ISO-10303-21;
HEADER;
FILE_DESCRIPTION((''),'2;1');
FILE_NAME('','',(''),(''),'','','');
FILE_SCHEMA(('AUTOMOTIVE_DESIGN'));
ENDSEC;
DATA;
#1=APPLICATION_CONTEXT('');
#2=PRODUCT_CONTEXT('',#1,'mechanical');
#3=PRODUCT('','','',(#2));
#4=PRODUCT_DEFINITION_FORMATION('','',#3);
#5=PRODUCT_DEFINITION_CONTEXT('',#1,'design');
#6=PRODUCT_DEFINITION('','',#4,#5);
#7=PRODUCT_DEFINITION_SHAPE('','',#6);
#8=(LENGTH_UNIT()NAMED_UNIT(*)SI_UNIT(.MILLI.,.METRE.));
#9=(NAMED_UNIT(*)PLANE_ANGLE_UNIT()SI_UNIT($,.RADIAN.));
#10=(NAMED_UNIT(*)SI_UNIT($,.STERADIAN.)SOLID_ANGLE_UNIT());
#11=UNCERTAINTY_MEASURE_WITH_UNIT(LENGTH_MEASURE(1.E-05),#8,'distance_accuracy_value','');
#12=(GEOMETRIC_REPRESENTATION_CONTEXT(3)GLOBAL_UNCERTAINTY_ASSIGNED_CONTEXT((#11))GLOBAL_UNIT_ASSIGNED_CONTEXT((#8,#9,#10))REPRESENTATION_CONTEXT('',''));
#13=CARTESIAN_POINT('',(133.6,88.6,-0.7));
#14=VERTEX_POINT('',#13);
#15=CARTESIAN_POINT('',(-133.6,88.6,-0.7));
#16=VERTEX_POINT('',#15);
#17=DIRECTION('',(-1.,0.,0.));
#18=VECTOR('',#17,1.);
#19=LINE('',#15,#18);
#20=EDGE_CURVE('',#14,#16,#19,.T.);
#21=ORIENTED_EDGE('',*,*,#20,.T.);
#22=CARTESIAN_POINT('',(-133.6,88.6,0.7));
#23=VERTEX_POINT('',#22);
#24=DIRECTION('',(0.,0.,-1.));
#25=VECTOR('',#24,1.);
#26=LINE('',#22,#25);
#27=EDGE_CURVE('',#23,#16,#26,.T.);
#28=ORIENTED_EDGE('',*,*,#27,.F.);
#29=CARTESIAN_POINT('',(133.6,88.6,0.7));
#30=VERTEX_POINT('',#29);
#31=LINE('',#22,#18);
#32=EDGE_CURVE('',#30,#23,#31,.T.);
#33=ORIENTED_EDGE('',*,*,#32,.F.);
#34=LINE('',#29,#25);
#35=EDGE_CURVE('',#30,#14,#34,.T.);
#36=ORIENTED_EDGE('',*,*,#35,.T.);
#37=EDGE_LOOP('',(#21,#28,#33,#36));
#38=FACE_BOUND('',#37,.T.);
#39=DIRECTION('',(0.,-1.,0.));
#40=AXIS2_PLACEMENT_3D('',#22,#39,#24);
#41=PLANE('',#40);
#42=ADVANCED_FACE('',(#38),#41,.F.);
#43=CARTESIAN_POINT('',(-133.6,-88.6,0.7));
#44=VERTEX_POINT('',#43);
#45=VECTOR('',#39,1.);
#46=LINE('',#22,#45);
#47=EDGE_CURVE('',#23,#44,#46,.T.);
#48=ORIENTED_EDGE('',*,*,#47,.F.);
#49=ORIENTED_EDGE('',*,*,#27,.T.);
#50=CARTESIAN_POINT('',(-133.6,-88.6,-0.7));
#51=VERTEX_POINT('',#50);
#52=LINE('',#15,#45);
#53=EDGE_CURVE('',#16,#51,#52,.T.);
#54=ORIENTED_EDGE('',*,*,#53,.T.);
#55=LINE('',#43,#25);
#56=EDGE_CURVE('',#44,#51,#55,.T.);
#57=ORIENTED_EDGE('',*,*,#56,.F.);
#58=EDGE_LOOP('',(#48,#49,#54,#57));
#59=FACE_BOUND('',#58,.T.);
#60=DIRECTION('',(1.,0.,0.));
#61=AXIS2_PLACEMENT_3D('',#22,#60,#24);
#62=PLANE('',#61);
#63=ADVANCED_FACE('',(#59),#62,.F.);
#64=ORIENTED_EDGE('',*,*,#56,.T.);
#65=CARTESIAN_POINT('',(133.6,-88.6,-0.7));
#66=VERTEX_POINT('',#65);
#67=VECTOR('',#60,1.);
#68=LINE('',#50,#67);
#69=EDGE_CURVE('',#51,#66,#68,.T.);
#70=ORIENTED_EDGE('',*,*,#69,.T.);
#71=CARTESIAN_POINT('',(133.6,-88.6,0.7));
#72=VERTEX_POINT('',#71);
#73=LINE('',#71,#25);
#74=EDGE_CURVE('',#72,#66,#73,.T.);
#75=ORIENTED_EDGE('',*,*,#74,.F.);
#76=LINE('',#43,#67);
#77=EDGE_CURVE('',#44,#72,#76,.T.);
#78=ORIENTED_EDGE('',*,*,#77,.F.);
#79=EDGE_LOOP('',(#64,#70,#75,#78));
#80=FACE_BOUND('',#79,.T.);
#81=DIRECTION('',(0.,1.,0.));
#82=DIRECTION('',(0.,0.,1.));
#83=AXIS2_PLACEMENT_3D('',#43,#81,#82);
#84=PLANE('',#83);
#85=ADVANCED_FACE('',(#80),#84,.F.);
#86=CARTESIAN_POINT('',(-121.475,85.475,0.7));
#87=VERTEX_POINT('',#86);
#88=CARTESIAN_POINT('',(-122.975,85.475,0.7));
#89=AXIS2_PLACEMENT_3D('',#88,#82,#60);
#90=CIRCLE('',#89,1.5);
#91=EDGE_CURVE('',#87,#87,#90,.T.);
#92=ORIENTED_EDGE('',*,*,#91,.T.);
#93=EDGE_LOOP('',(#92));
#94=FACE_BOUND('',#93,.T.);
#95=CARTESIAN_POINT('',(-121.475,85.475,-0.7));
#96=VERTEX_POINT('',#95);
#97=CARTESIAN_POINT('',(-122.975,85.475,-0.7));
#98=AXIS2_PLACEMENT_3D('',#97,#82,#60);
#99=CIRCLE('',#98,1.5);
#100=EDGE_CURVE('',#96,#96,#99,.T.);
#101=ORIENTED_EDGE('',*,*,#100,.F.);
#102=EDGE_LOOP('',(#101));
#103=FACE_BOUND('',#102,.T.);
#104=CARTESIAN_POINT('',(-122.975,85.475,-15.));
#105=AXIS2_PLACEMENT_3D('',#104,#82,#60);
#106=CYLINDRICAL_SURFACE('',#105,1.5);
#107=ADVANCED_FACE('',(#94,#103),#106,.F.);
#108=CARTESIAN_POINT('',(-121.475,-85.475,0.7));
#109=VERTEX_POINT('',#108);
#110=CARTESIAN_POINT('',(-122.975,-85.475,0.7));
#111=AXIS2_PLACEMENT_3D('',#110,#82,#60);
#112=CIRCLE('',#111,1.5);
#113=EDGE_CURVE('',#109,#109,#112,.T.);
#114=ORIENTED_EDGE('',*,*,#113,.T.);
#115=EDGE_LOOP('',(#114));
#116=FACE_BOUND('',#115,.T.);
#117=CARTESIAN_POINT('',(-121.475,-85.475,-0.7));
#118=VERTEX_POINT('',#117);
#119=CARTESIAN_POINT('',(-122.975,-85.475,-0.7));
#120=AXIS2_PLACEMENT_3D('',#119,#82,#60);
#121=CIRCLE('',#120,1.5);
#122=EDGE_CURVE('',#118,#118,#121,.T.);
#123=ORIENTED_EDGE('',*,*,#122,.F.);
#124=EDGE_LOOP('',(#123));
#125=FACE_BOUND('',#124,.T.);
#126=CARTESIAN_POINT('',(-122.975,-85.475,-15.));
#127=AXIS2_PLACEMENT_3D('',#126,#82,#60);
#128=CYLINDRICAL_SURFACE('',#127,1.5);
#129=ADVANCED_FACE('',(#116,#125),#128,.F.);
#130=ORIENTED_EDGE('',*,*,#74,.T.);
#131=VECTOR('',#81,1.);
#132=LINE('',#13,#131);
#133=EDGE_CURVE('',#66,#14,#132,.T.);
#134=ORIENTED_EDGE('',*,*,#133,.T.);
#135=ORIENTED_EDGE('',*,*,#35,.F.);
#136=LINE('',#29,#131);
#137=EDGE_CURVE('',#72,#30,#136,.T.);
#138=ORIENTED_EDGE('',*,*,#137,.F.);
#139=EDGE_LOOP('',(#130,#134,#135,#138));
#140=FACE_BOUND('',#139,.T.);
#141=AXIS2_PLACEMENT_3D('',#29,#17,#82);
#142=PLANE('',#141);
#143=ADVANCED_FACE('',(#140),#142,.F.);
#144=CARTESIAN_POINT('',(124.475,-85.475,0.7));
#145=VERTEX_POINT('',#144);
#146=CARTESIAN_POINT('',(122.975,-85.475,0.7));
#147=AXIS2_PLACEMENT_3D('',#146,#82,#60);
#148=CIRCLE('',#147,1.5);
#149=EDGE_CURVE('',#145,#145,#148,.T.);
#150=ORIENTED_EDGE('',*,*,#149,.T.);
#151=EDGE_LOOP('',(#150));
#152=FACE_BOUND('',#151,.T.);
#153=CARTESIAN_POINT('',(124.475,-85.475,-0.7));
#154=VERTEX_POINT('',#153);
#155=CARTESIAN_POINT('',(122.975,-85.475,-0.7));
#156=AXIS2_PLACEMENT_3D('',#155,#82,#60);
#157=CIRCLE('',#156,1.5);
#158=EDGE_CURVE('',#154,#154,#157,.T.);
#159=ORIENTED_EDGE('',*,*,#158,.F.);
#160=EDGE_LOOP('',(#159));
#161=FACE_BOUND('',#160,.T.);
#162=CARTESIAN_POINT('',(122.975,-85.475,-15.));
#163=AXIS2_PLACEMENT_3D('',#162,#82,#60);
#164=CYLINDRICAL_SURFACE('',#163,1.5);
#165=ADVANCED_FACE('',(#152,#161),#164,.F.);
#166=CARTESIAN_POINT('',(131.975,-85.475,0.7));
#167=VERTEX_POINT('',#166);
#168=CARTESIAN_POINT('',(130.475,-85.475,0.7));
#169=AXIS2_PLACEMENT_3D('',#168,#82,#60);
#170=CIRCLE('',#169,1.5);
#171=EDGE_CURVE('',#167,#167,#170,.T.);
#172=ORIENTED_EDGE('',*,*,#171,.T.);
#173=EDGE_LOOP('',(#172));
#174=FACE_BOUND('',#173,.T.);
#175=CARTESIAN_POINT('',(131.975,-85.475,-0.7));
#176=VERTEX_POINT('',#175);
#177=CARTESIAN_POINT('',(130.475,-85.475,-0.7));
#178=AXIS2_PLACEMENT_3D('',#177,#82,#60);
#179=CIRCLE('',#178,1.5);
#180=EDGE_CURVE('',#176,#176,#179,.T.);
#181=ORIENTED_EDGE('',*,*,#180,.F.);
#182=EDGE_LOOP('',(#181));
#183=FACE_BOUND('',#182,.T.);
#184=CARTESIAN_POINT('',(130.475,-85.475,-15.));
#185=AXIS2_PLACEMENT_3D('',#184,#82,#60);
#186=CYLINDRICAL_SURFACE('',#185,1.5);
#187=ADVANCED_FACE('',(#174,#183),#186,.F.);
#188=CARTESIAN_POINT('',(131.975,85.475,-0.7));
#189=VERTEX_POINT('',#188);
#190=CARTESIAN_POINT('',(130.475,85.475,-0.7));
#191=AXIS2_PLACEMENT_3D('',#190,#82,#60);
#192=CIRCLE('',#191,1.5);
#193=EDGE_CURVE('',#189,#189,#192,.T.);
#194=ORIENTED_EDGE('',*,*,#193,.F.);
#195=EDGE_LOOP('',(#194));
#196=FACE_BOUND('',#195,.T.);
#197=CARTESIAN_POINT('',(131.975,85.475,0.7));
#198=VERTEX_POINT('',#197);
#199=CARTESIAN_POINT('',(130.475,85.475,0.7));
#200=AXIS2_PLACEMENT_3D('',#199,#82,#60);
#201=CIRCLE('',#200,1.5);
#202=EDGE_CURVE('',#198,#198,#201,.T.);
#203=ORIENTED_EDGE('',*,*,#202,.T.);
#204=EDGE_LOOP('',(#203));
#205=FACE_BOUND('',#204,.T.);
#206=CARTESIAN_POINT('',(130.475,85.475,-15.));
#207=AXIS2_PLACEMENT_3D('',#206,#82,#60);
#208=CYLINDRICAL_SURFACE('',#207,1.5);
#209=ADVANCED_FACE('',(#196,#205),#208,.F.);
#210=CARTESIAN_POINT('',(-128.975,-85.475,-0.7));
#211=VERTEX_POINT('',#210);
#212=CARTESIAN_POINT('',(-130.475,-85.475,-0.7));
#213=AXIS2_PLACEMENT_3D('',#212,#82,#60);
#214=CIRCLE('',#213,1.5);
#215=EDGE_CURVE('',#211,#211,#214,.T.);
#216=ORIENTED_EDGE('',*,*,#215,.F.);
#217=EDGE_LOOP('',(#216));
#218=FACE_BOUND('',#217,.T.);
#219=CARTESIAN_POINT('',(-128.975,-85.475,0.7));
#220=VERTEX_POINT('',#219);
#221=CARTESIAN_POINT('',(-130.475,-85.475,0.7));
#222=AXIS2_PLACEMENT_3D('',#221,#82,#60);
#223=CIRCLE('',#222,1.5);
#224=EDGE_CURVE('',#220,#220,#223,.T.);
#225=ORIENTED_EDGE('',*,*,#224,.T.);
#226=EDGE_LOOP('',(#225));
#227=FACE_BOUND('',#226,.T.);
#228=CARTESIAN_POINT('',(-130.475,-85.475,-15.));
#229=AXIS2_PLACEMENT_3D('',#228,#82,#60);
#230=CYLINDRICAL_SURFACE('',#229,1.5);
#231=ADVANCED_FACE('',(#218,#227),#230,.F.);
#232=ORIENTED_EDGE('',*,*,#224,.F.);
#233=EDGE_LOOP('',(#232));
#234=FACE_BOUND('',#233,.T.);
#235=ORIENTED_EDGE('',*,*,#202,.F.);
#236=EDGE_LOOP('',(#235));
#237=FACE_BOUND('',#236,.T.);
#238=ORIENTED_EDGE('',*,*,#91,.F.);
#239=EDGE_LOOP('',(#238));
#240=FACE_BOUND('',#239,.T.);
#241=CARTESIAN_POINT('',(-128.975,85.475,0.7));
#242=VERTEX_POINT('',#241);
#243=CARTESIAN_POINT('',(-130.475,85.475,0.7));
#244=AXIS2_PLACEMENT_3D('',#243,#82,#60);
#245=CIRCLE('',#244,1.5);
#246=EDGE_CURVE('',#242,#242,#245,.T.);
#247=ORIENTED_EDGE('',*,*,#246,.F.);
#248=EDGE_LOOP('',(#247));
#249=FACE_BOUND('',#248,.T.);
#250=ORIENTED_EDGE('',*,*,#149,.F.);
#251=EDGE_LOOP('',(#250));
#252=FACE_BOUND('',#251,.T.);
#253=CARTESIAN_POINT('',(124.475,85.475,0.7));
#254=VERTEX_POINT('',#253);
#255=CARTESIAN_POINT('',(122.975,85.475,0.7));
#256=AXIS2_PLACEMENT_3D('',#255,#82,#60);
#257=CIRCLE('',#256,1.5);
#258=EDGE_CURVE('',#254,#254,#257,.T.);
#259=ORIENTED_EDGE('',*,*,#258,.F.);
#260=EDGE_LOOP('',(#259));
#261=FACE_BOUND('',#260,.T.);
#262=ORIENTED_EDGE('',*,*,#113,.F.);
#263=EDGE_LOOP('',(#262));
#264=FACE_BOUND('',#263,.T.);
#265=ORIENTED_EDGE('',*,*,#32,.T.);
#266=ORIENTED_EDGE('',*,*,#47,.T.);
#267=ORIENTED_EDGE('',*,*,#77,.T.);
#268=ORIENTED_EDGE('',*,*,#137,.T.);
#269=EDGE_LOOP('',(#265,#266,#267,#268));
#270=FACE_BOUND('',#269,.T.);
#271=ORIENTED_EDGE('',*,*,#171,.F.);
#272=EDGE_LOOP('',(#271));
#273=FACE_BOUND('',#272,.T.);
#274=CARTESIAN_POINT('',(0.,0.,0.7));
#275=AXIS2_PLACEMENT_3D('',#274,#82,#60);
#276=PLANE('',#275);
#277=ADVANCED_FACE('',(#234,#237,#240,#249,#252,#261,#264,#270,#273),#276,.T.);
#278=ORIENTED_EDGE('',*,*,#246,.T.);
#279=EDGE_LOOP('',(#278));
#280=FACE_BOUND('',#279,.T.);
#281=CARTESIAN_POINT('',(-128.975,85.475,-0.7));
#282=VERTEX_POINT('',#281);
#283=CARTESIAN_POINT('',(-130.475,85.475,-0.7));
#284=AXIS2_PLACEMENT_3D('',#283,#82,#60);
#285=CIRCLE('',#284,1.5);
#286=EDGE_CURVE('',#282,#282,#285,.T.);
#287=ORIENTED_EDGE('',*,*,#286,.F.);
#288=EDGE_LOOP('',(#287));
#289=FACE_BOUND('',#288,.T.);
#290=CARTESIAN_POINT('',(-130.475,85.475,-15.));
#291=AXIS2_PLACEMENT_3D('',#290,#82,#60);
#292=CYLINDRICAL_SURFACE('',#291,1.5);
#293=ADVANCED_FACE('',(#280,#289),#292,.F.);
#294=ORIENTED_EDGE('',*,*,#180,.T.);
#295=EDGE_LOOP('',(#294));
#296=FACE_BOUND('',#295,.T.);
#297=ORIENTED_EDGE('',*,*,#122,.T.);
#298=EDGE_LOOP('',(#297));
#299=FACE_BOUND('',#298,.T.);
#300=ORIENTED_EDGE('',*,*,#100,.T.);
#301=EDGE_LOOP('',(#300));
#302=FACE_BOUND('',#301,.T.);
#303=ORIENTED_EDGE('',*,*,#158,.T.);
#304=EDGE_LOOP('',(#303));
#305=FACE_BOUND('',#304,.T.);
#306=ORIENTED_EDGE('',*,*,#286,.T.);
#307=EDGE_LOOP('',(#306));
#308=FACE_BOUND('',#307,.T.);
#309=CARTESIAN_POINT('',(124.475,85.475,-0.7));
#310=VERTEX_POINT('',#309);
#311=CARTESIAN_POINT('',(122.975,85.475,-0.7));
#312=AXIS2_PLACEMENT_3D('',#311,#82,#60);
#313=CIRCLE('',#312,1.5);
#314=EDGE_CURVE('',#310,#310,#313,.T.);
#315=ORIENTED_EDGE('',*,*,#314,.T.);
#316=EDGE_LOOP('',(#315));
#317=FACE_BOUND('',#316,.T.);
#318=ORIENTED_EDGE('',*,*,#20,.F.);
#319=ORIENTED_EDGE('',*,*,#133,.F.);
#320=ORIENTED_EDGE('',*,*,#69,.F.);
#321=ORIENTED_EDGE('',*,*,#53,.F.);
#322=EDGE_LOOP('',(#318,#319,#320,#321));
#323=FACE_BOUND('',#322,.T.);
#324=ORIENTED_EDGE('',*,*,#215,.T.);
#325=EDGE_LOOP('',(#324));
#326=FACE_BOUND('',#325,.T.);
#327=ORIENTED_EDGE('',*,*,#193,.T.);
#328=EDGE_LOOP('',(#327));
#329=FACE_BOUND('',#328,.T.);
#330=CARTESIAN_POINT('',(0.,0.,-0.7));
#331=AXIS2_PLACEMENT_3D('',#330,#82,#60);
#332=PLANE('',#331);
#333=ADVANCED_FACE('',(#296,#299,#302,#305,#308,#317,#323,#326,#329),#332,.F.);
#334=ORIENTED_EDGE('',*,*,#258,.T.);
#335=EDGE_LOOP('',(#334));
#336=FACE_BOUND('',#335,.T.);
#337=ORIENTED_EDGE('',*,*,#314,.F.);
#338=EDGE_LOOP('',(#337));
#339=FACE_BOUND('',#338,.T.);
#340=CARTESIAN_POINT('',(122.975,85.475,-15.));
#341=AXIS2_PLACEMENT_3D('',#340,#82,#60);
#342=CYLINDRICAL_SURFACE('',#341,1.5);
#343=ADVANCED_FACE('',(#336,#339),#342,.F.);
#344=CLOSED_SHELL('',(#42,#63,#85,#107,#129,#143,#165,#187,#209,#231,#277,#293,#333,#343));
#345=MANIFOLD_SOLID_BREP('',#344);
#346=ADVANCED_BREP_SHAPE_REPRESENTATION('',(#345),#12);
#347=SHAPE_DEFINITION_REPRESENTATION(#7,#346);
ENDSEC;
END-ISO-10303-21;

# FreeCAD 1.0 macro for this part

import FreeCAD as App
import Part
import Sketcher
from FreeCAD import Vector

doc = App.newDocument("Part")
body = doc.addObject("PartDesign::Body", "Body")

# Sketch on XY plane
sketch1 = doc.addObject("Sketcher::SketchObject", "Sketch")
body.addObject(sketch1)
sketch1.AttachmentSupport = (doc.XY_Plane, [""])
sketch1.MapMode = "FlatFace"
sketch1.addGeometry([
    Part.LineSegment(Vector(-134, 89, 0), Vector(-134, -89, 0)),
    Part.LineSegment(Vector(-134, -89, 0), Vector(134, -89, 0)),
    Part.LineSegment(Vector(134, -89, 0), Vector(134, 89, 0)),
    Part.LineSegment(Vector(134, 89, 0), Vector(-134, 89, 0)),
], False)
sketch1.addConstraint([
    Sketcher.Constraint("Coincident", 0, 2, 1, 1),
    Sketcher.Constraint("Coincident", 1, 2, 2, 1),
    Sketcher.Constraint("Coincident", 2, 2, 3, 1),
    Sketcher.Constraint("Coincident", 3, 2, 0, 1),
    Sketcher.Constraint("Vertical", 0),
    Sketcher.Constraint("Horizontal", 1),
    Sketcher.Constraint("Vertical", 2),
    Sketcher.Constraint("Horizontal", 3),
    Sketcher.Constraint("Symmetric", 0, 2, 2, 2, -1, 1),
    Sketcher.Constraint("DistanceX", 1, 1, 1, 2, 267.2),
    Sketcher.Constraint("DistanceY", 0, 2, 0, 1, 177.2),
])
pad1 = doc.addObject("PartDesign::Pad", "Pad")
body.addObject(pad1)
pad1.Profile = sketch1
pad1.Length = 1.4
pad1.Midplane = True

# Sketch on XY plane
sketch2 = doc.addObject("Sketcher::SketchObject", "Sketch001")
body.addObject(sketch2)
sketch2.AttachmentSupport = (doc.XY_Plane, [""])
sketch2.MapMode = "FlatFace"
sketch2.AttachmentOffset = App.Placement(Vector(0, 0, 0.7), App.Rotation())
sketch2.addGeometry([
    Part.Circle(Vector(-130.5, 85.5, 0), Vector(0, 0, 1), 1.5),  # 0
    Part.Circle(Vector(-123, 85.5, 0), Vector(0, 0, 1), 1.5),  # 1
    Part.Circle(Vector(-130.5, -85.5, 0), Vector(0, 0, 1), 1.5),  # 2
    Part.Circle(Vector(-123, -85.5, 0), Vector(0, 0, 1), 1.5),  # 3
    Part.Circle(Vector(130.5, -85.5, 0), Vector(0, 0, 1), 1.5),  # 4
    Part.Circle(Vector(123, -85.5, 0), Vector(0, 0, 1), 1.5),  # 5
    Part.Circle(Vector(130.5, 85.5, 0), Vector(0, 0, 1), 1.5),  # 6
    Part.Circle(Vector(123, 85.5, 0), Vector(0, 0, 1), 1.5),  # 7
], False)
sketch2.addConstraint([
    Sketcher.Constraint("Equal", 0, 1),
    Sketcher.Constraint("Equal", 1, 2),
    Sketcher.Constraint("Equal", 2, 3),
    Sketcher.Constraint("Equal", 3, 4),
    Sketcher.Constraint("Equal", 4, 5),
    Sketcher.Constraint("Equal", 5, 6),
    Sketcher.Constraint("Equal", 6, 7),
    Sketcher.Constraint("Symmetric", 0, 3, 4, 3, -1, 1),
    Sketcher.Constraint("Symmetric", 1, 3, 5, 3, -1, 1),
    Sketcher.Constraint("Symmetric", 2, 3, 6, 3, -1, 1),
    Sketcher.Constraint("Symmetric", 3, 3, 7, 3, -1, 1),
    Sketcher.Constraint("Symmetric", 2, 3, 4, 3, -2),
    Sketcher.Constraint("Symmetric", 3, 3, 5, 3, -2),
    Sketcher.Constraint("Horizontal", 0, 3, 1, 3),
    Sketcher.Constraint("Diameter", 0, 3.0),
    Sketcher.Constraint("DistanceX", 0, 3, 1, 3, 7.5),
    Sketcher.Constraint("DistanceY", 2, 3, 0, 3, 170.95),
    Sketcher.Constraint("DistanceX", 3, 3, 4, 3, 253.45),
])
pocket1 = doc.addObject("PartDesign::Pocket", "Pocket")
body.addObject(pocket1)
pocket1.Profile = sketch2
pocket1.Length = 31.4
pocket1.Midplane = True

doc.recompute()
